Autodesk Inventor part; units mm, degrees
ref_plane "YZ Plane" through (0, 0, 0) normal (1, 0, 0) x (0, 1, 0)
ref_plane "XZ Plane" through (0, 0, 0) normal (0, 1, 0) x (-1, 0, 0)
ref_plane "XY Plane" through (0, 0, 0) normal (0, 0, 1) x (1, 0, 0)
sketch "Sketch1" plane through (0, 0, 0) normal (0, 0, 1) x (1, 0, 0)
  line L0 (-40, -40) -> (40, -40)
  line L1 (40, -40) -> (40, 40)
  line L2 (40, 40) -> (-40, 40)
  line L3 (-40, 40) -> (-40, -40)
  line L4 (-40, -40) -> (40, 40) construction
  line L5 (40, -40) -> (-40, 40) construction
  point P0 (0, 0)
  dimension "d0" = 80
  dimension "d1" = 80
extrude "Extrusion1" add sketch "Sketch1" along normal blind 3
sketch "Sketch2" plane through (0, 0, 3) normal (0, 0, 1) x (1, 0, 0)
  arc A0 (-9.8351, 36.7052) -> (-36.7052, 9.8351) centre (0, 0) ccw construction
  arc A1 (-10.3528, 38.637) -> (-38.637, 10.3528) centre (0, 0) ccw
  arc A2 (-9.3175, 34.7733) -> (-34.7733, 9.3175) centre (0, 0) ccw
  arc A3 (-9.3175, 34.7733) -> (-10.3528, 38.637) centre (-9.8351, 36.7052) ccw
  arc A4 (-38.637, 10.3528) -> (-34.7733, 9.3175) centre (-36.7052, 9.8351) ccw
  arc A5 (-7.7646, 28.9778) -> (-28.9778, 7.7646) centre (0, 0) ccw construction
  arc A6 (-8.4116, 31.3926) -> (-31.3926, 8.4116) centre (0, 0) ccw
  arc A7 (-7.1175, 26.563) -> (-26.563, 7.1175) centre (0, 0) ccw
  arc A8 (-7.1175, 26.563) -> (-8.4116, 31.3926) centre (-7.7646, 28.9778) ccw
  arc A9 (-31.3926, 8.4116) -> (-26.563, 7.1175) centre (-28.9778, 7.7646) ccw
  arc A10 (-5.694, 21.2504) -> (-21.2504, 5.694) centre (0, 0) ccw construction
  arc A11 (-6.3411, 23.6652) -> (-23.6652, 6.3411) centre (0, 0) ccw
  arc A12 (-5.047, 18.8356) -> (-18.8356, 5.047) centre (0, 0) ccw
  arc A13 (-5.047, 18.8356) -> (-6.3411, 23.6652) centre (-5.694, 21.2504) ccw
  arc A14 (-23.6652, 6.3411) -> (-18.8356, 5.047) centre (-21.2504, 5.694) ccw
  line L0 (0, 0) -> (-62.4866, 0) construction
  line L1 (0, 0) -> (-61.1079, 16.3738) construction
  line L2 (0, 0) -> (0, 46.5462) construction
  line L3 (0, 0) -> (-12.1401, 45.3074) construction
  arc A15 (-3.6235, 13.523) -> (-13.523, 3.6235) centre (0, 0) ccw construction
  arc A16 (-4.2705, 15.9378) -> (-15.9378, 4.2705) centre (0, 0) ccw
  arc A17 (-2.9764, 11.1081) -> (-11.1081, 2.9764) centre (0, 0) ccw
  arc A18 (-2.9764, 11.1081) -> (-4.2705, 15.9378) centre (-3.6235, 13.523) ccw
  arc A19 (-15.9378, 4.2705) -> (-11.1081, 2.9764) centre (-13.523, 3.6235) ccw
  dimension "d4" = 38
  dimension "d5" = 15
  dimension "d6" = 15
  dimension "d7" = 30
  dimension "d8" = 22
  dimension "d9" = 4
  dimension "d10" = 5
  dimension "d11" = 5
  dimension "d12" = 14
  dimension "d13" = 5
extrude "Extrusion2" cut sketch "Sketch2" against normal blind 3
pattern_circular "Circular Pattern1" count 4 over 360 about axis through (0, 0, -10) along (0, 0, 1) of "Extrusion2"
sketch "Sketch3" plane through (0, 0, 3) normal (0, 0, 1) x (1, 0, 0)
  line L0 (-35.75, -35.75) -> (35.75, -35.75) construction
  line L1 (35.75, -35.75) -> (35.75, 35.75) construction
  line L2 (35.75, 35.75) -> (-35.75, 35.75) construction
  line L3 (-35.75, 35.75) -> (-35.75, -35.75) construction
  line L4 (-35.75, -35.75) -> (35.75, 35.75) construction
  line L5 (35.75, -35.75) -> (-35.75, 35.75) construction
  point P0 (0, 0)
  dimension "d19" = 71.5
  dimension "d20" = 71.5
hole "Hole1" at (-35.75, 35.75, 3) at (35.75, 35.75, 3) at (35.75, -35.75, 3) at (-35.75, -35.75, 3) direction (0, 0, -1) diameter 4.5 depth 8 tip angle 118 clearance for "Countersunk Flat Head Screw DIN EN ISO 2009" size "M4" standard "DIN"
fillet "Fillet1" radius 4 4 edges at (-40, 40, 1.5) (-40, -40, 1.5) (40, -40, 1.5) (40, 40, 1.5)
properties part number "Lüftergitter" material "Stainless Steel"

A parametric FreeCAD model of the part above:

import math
import FreeCAD as App
import Part
import Sketcher
Q = App.Units.Quantity


def edges_at(feature, points):
    """Names of the edges that pass closest to the given points."""
    edges = feature.Shape.Edges
    near = lambda p: min(range(len(edges)), key=lambda i: edges[i].distToShape(Part.Vertex(*p))[0])
    return sorted({f"Edge{near(p) + 1}" for p in points})

doc = App.newDocument("Part")
params = doc.addObject("Spreadsheet::Sheet", "Params")
for row, (alias, value) in enumerate([
    ("sketch1_width", "80 mm"),
    ("pad1_length", "3 mm"),
    ("sketch2_radius", "2 mm"),
    ("sketch2_radius2", "2.5 mm"),
    ("sketch2_radius3", "40 mm"),
    ("sketch2_radius4", "32.5 mm"),
    ("sketch2_radius5", "24.5 mm"),
    ("pocket1_length", "3 mm"),
    ("sketch3_diameter", "4.5 mm"),
    ("hole_diameter", "4.5 mm"),
    ("hole_depth", "8 mm"),
    ("fillet_radius", "4 mm"),
], start=1):
    params.set(f"A{row}", alias)
    params.set(f"B{row}", "=" + value)
    params.setAlias(f"B{row}", alias)

body = doc.addObject("PartDesign::Body", "Body")

# Sketch on XY plane
sketch1 = body.newObject("Sketcher::SketchObject", "Sketch")
sketch1.AttachmentSupport = (doc.getObject("XY_Plane"), [""])
sketch1.MapMode = "FlatFace"
sketch1.addGeometry([
    Part.LineSegment(App.Vector(-40, 40, 0), App.Vector(-40, -40, 0)),
    Part.LineSegment(App.Vector(-40, -40, 0), App.Vector(40, -40, 0)),
    Part.LineSegment(App.Vector(40, -40, 0), App.Vector(40, 40, 0)),
    Part.LineSegment(App.Vector(40, 40, 0), App.Vector(-40, 40, 0)),
], False)
sketch1.addConstraint([
    Sketcher.Constraint("Coincident", 0, 2, 1, 1),
    Sketcher.Constraint("Coincident", 1, 2, 2, 1),
    Sketcher.Constraint("Coincident", 2, 2, 3, 1),
    Sketcher.Constraint("Coincident", 3, 2, 0, 1),
    Sketcher.Constraint("Vertical", 0),
    Sketcher.Constraint("Horizontal", 1),
    Sketcher.Constraint("Vertical", 2),
    Sketcher.Constraint("Horizontal", 3),
    Sketcher.Constraint("Symmetric", 0, 2, 2, 2, -1, 1),
    Sketcher.Constraint("Equal", 3, 0),
    Sketcher.Constraint("DistanceX", 1, 1, 1, 2, Q("80 mm")),
])
sketch1.setExpression("Constraints[10]", "Params.sketch1_width")
pad1 = body.newObject("PartDesign::Pad", "Pad")
pad1.Profile = sketch1
pad1.setExpression("Length", "Params.pad1_length")

# Sketch on XY plane
sketch2 = body.newObject("Sketcher::SketchObject", "Sketch001")
sketch2.AttachmentSupport = (doc.getObject("XY_Plane"), [""])
sketch2.MapMode = "FlatFace"
sketch2.AttachmentOffset = App.Placement(App.Vector(0, 0, 3), App.Rotation())
sketch2.addGeometry([
    Part.ArcOfCircle(Part.Circle(App.Vector(-9.8, 36.7, 0), App.Vector(0, 0, 1), 2), math.radians(-75), math.radians(105)),  # 0
    Part.ArcOfCircle(Part.Circle(App.Vector(0, 0, 0), App.Vector(0, 0, 1), 40), math.radians(105), math.radians(165)),  # 1
    Part.ArcOfCircle(Part.Circle(App.Vector(-36.7, 9.8, 0), App.Vector(0, 0, 1), 2), math.radians(165), math.radians(345)),  # 2
    Part.ArcOfCircle(Part.Circle(App.Vector(0, 0, 0), App.Vector(0, 0, 1), 36), math.radians(105), math.radians(165)),  # 3
    Part.ArcOfCircle(Part.Circle(App.Vector(-7.8, 29, 0), App.Vector(0, 0, 1), 2.5), math.radians(-75), math.radians(105)),  # 4
    Part.ArcOfCircle(Part.Circle(App.Vector(0, 0, 0), App.Vector(0, 0, 1), 32.5), math.radians(105), math.radians(165)),  # 5
    Part.ArcOfCircle(Part.Circle(App.Vector(-29, 7.8, 0), App.Vector(0, 0, 1), 2.5), math.radians(165), math.radians(345)),  # 6
    Part.ArcOfCircle(Part.Circle(App.Vector(0, 0, 0), App.Vector(0, 0, 1), 27.5), math.radians(105), math.radians(165)),  # 7
    Part.ArcOfCircle(Part.Circle(App.Vector(-5.7, 21.3, 0), App.Vector(0, 0, 1), 2.5), math.radians(-75), math.radians(105)),  # 8
    Part.ArcOfCircle(Part.Circle(App.Vector(0, 0, 0), App.Vector(0, 0, 1), 24.5), math.radians(105), math.radians(165)),  # 9
    Part.ArcOfCircle(Part.Circle(App.Vector(-21.3, 5.7, 0), App.Vector(0, 0, 1), 2.5), math.radians(165), math.radians(345)),  # 10
    Part.ArcOfCircle(Part.Circle(App.Vector(0, 0, 0), App.Vector(0, 0, 1), 19.5), math.radians(105), math.radians(165)),  # 11
    Part.ArcOfCircle(Part.Circle(App.Vector(-3.6, 13.5, 0), App.Vector(0, 0, 1), 2.5), math.radians(-75), math.radians(105)),  # 12
    Part.ArcOfCircle(Part.Circle(App.Vector(0, 0, 0), App.Vector(0, 0, 1), 16.5), math.radians(105), math.radians(165)),  # 13
    Part.ArcOfCircle(Part.Circle(App.Vector(-13.5, 3.6, 0), App.Vector(0, 0, 1), 2.5), math.radians(165), math.radians(345)),  # 14
    Part.ArcOfCircle(Part.Circle(App.Vector(0, 0, 0), App.Vector(0, 0, 1), 11.5), math.radians(105), math.radians(165)),  # 15
], False)
sketch2.addConstraint([
    Sketcher.Constraint("Tangent", 0, 2, 1, 1),
    Sketcher.Constraint("Tangent", 1, 2, 2, 1),
    Sketcher.Constraint("Tangent", 2, 2, 3, 2),
    Sketcher.Constraint("Tangent", 3, 1, 0, 1),
    Sketcher.Constraint("Tangent", 4, 2, 5, 1),
    Sketcher.Constraint("Tangent", 5, 2, 6, 1),
    Sketcher.Constraint("Tangent", 6, 2, 7, 2),
    Sketcher.Constraint("Tangent", 7, 1, 4, 1),
    Sketcher.Constraint("Tangent", 8, 2, 9, 1),
    Sketcher.Constraint("Tangent", 9, 2, 10, 1),
    Sketcher.Constraint("Tangent", 10, 2, 11, 2),
    Sketcher.Constraint("Tangent", 11, 1, 8, 1),
    Sketcher.Constraint("Tangent", 12, 2, 13, 1),
    Sketcher.Constraint("Tangent", 13, 2, 14, 1),
    Sketcher.Constraint("Tangent", 14, 2, 15, 2),
    Sketcher.Constraint("Tangent", 15, 1, 12, 1),
    Sketcher.Constraint("Coincident", 1, 3, -1, 1),
    Sketcher.Constraint("Coincident", 3, 3, -1, 1),
    Sketcher.Constraint("Coincident", 5, 3, -1, 1),
    Sketcher.Constraint("Coincident", 7, 3, -1, 1),
    Sketcher.Constraint("Coincident", 9, 3, -1, 1),
    Sketcher.Constraint("Coincident", 11, 3, -1, 1),
    Sketcher.Constraint("Coincident", 13, 3, -1, 1),
    Sketcher.Constraint("Coincident", 15, 3, -1, 1),
    Sketcher.Constraint("Equal", 6, 8),
    Sketcher.Constraint("Equal", 10, 12),
    Sketcher.Constraint("Radius", 0, Q("2 mm")),
    Sketcher.Constraint("Radius", 4, Q("2.5 mm")),
    Sketcher.Constraint("Radius", 1, Q("40 mm")),
    Sketcher.Constraint("Radius", 5, Q("32.5 mm")),
    Sketcher.Constraint("Radius", 9, Q("24.5 mm")),
    Sketcher.Constraint("Radius", 13, Q("16.5 mm")),
    Sketcher.Constraint("DistanceY", 6, 2, 2, 2, Q("2.2 mm")),
    Sketcher.Constraint("DistanceX", 3, 1, 7, 1, Q("2.2 mm")),
    Sketcher.Constraint("DistanceX", 2, 3, 0, 3, Q("26.87 mm")),
    Sketcher.Constraint("DistanceY", 2, 3, 0, 3, Q("26.87 mm")),
    Sketcher.Constraint("DistanceX", 8, 3, -1, 1, Q("5.694 mm")),
    Sketcher.Constraint("DistanceY", -1, 1, 10, 3, Q("5.694 mm")),
    Sketcher.Constraint("DistanceY", -1, 1, 12, 3, Q("13.523 mm")),
    Sketcher.Constraint("DistanceX", 14, 3, -1, 1, Q("13.523 mm")),
])
sketch2.setExpression("Constraints[26]", "Params.sketch2_radius")
sketch2.setExpression("Constraints[27]", "Params.sketch2_radius2")
sketch2.setExpression("Constraints[28]", "Params.sketch2_radius3")
sketch2.setExpression("Constraints[29]", "Params.sketch2_radius4")
sketch2.setExpression("Constraints[30]", "Params.sketch2_radius5")
pocket1 = body.newObject("PartDesign::Pocket", "Pocket")
pocket1.Profile = sketch2
pocket1.setExpression("Length", "Params.pocket1_length")
doc.recompute()

polarpattern = body.newObject("PartDesign::PolarPattern", "PolarPattern")
polarpattern.Originals = [pocket1]
polarpattern.Axis = (doc.getObject("Z_Axis"), [""])
polarpattern.Angle = 360
polarpattern.Occurrences = 4
body.Tip = polarpattern

# Sketch on XY plane
sketch3 = body.newObject("Sketcher::SketchObject", "Sketch002")
sketch3.AttachmentSupport = (doc.getObject("XY_Plane"), [""])
sketch3.MapMode = "FlatFace"
sketch3.AttachmentOffset = App.Placement(App.Vector(0, 0, 3), App.Rotation())
sketch3.addGeometry([
    Part.Circle(App.Vector(-35.8, 35.8, 0), App.Vector(0, 0, 1), 2.2),
    Part.Circle(App.Vector(35.8, 35.8, 0), App.Vector(0, 0, 1), 2.2),
    Part.Circle(App.Vector(35.8, -35.8, 0), App.Vector(0, 0, 1), 2.2),
    Part.Circle(App.Vector(-35.8, -35.8, 0), App.Vector(0, 0, 1), 2.2),
], False)
sketch3.addConstraint([
    Sketcher.Constraint("Equal", 0, 1),
    Sketcher.Constraint("Equal", 1, 2),
    Sketcher.Constraint("Equal", 2, 3),
    Sketcher.Constraint("Symmetric", 0, 3, 2, 3, -1, 1),
    Sketcher.Constraint("Symmetric", 1, 3, 3, 3, -1, 1),
    Sketcher.Constraint("Symmetric", 0, 3, 1, 3, -2),
    Sketcher.Constraint("Diameter", 0, Q("4.5 mm")),
    Sketcher.Constraint("DistanceX", 0, 3, 1, 3, Q("71.5 mm")),
    Sketcher.Constraint("DistanceY", 2, 3, 1, 3, Q("71.5 mm")),
])
sketch3.setExpression("Constraints[6]", "Params.sketch3_diameter")
doc.recompute()
hole = body.newObject("PartDesign::Hole", "Hole")
hole.Profile = sketch3
hole.ThreadType = "None"
hole.setExpression("Diameter", "Params.hole_diameter")
hole.DepthType = "Dimension"
hole.setExpression("Depth", "Params.hole_depth")
hole.DrillPoint = "Angled"
hole.DrillPointAngle = 118
doc.recompute()

fillet = body.newObject("PartDesign::Fillet", "Fillet")
fillet.Base = (hole, edges_at(hole, [
    (-40, 40, 1.5),
    (-40, -40, 1.5),
    (40, -40, 1.5),
    (40, 40, 1.5),
]))
fillet.setExpression("Radius", "Params.fillet_radius")

doc.recompute()
